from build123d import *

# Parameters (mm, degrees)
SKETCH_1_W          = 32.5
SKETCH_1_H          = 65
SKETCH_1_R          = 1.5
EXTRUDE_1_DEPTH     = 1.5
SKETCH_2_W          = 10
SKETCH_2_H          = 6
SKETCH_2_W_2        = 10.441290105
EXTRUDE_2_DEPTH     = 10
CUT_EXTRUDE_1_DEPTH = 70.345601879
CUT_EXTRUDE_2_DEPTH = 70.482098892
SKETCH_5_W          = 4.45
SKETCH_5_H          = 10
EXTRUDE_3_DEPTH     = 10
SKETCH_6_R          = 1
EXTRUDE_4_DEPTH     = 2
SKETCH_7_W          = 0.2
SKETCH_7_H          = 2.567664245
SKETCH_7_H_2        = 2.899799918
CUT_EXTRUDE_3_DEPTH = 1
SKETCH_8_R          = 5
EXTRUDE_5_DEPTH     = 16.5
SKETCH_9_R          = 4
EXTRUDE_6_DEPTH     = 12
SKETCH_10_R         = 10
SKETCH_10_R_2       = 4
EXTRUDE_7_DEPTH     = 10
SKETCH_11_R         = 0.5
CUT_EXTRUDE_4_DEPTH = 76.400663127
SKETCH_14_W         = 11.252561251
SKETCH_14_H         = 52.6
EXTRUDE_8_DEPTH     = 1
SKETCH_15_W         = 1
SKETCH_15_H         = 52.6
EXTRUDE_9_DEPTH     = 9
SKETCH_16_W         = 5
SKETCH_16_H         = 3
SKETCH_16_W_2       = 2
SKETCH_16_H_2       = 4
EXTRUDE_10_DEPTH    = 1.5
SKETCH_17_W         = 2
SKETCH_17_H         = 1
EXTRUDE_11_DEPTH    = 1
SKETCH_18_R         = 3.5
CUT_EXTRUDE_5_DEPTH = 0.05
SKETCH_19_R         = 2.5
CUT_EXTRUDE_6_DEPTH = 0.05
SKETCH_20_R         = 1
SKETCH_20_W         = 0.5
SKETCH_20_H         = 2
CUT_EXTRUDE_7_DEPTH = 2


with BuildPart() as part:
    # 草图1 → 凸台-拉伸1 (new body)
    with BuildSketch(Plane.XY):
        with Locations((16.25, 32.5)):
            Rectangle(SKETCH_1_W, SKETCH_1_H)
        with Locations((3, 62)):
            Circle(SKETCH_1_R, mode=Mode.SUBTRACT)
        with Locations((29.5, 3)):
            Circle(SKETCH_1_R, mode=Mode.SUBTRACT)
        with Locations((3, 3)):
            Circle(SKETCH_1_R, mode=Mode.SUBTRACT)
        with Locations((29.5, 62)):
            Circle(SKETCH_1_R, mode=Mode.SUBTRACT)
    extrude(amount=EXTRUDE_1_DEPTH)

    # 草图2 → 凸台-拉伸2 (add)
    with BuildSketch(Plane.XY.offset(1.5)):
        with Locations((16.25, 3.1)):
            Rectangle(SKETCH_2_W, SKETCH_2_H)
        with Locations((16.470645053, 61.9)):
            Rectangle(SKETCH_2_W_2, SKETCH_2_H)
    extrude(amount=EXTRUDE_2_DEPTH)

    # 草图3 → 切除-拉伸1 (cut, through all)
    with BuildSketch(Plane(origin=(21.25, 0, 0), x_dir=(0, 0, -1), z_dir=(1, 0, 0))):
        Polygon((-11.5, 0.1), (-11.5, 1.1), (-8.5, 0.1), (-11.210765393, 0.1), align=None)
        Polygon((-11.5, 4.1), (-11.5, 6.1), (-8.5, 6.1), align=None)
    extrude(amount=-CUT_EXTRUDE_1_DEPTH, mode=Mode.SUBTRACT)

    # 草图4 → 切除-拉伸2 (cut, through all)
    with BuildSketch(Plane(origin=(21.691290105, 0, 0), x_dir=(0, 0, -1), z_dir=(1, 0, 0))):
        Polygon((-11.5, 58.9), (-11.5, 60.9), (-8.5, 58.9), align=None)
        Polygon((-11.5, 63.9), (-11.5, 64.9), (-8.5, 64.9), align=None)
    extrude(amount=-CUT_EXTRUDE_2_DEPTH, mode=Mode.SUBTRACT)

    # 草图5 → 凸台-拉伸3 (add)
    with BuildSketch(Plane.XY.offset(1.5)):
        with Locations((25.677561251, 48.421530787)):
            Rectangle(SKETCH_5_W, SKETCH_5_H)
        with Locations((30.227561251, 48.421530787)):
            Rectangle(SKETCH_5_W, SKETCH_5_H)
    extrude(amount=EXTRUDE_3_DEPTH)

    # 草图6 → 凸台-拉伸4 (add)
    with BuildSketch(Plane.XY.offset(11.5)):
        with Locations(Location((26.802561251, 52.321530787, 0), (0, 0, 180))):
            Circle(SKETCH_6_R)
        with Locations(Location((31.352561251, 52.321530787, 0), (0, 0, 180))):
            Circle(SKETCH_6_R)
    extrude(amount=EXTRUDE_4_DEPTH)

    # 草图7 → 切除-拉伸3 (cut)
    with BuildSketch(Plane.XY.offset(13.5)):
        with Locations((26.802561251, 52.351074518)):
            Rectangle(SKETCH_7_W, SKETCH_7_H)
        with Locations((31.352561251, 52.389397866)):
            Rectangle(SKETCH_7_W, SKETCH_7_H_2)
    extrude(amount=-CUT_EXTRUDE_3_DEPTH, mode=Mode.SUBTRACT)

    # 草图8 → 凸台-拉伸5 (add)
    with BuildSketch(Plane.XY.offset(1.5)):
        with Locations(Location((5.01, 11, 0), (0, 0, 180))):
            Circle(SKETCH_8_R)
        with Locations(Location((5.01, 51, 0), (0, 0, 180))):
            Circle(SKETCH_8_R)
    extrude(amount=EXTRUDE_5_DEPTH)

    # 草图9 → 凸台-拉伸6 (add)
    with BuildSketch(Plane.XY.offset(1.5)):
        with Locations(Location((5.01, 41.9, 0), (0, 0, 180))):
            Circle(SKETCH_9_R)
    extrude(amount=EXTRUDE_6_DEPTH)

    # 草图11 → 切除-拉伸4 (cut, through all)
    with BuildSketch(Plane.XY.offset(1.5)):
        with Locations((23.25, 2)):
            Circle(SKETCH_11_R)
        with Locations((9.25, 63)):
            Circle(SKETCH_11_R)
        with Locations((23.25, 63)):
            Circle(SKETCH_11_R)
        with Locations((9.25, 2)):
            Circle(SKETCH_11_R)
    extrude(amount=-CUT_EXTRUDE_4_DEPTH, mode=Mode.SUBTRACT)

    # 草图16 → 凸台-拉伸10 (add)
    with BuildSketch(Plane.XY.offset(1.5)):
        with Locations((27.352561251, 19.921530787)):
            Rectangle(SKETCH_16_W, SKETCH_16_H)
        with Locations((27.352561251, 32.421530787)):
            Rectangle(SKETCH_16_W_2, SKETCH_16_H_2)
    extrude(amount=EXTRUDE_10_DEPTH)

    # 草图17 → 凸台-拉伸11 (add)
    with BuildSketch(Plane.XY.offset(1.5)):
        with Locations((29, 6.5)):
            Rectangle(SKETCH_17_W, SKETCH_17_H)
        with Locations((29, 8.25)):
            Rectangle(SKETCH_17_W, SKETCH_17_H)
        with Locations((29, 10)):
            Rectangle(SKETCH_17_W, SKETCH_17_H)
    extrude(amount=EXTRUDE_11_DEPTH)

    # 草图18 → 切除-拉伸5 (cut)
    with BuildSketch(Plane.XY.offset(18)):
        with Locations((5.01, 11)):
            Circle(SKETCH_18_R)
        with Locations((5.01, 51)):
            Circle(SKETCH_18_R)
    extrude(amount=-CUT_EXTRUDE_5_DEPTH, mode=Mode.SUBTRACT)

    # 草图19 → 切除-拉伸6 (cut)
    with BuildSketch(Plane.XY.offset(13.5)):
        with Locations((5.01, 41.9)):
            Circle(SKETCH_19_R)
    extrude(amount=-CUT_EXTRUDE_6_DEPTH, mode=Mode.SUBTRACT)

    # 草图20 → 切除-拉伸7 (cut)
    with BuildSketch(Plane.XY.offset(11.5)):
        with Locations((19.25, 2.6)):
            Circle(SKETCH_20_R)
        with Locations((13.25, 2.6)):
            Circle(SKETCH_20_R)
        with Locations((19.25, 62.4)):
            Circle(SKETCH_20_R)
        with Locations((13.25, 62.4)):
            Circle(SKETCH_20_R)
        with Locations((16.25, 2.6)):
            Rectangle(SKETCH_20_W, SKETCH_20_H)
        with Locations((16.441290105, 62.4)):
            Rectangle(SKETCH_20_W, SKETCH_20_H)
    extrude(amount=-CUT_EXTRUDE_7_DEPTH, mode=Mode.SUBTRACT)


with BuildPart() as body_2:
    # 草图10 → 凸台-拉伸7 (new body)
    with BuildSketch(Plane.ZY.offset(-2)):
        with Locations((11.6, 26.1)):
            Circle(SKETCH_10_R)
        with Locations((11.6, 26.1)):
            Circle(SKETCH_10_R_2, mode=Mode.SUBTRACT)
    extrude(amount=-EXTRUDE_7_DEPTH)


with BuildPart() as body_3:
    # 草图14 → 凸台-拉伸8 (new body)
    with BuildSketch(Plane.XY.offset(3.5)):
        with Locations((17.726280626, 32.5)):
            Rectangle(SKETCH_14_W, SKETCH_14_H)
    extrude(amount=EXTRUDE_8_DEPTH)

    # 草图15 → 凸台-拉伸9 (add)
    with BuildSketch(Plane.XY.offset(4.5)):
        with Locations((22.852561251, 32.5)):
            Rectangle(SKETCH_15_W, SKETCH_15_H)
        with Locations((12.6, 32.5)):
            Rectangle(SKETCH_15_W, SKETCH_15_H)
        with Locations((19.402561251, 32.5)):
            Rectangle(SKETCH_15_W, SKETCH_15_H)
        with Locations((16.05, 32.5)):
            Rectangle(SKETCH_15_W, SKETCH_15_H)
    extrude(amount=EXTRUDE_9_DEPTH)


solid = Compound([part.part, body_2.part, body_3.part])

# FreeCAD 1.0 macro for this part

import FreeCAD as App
import Part
import Sketcher


def add_polygon(sketch, points):
    """Adds a closed chain of lines whose ends are joined by coincident constraints."""
    first, n = sketch.GeometryCount, len(points)
    for a, b in zip(points, points[1:] + points[:1]):
        sketch.addGeometry(Part.LineSegment(App.Vector(*a, 0), App.Vector(*b, 0)), False)
    for i in range(n):
        sketch.addConstraint(Sketcher.Constraint("Coincident", first + i, 2, first + (i + 1) % n, 1))

doc = App.newDocument("Part")
body = doc.addObject("PartDesign::Body", "Body")

# Sketch on XY plane
sketch1 = body.newObject("Sketcher::SketchObject", "Sketch")
sketch1.AttachmentSupport = (doc.getObject("XY_Plane"), [""])
sketch1.MapMode = "FlatFace"
add_polygon(sketch1, [(0, 65), (0, 0), (32.5, 0), (32.5, 65)])  # lines 0-3
sketch1.addGeometry(Part.Circle(App.Vector(3, 3, 0), App.Vector(0, 0, 1), 1.5), False)  # 4
sketch1.addGeometry(Part.Circle(App.Vector(29.5, 3, 0), App.Vector(0, 0, 1), 1.5), False)  # 5
sketch1.addGeometry(Part.Circle(App.Vector(3, 62, 0), App.Vector(0, 0, 1), 1.5), False)  # 6
sketch1.addGeometry(Part.Circle(App.Vector(29.5, 62, 0), App.Vector(0, 0, 1), 1.5), False)  # 7
sketch1.addConstraint(Sketcher.Constraint("Vertical", 0))
sketch1.addConstraint(Sketcher.Constraint("Horizontal", 1))
sketch1.addConstraint(Sketcher.Constraint("Vertical", 2))
sketch1.addConstraint(Sketcher.Constraint("Horizontal", 3))
sketch1.addConstraint(Sketcher.Constraint("Coincident", 0, 2, -1, 1))
sketch1.addConstraint(Sketcher.Constraint("Equal", 4, 5))
sketch1.addConstraint(Sketcher.Constraint("Equal", 5, 6))
sketch1.addConstraint(Sketcher.Constraint("Equal", 6, 7))
sketch1.addConstraint(Sketcher.Constraint("Horizontal", 4, 3, 5, 3))
sketch1.addConstraint(Sketcher.Constraint("Horizontal", 6, 3, 7, 3))
sketch1.addConstraint(Sketcher.Constraint("Vertical", 4, 3, 6, 3))
sketch1.addConstraint(Sketcher.Constraint("Vertical", 5, 3, 7, 3))
sketch1.addConstraint(Sketcher.Constraint("Diameter", 4, 3.0))
sketch1.addConstraint(Sketcher.Constraint("DistanceY", 0, 2, 0, 1, 65.0))
sketch1.addConstraint(Sketcher.Constraint("DistanceX", 1, 1, 1, 2, 32.5))
sketch1.addConstraint(Sketcher.Constraint("DistanceX", -1, 1, 4, 3, 3.0))
sketch1.addConstraint(Sketcher.Constraint("DistanceY", -1, 1, 4, 3, 3.0))
sketch1.addConstraint(Sketcher.Constraint("DistanceY", -1, 1, 6, 3, 62.0))
sketch1.addConstraint(Sketcher.Constraint("DistanceX", 5, 3, 1, 2, 3.0))
pad1 = body.newObject("PartDesign::Pad", "Pad")
pad1.Profile = sketch1
pad1.Length = 1.5

# Sketch on XY plane
sketch2 = body.newObject("Sketcher::SketchObject", "Sketch001")
sketch2.AttachmentSupport = (doc.getObject("XY_Plane"), [""])
sketch2.MapMode = "FlatFace"
sketch2.AttachmentOffset = App.Placement(App.Vector(0, 0, 1.5), App.Rotation())
add_polygon(sketch2, [(11, 6), (11, 0), (21, 0), (21, 6)])  # lines 0-3
add_polygon(sketch2, [(11, 65), (11, 59), (22, 59), (22, 65)])  # lines 4-7
sketch2.addConstraint(Sketcher.Constraint("Vertical", 0))
sketch2.addConstraint(Sketcher.Constraint("Horizontal", 1))
sketch2.addConstraint(Sketcher.Constraint("Vertical", 2))
sketch2.addConstraint(Sketcher.Constraint("Horizontal", 3))
sketch2.addConstraint(Sketcher.Constraint("Vertical", 4))
sketch2.addConstraint(Sketcher.Constraint("Horizontal", 5))
sketch2.addConstraint(Sketcher.Constraint("Vertical", 6))
sketch2.addConstraint(Sketcher.Constraint("Horizontal", 7))
sketch2.addConstraint(Sketcher.Constraint("Vertical", 3, 2, 4, 2))
sketch2.addConstraint(Sketcher.Constraint("Equal", 2, 4))
sketch2.addConstraint(Sketcher.Constraint("DistanceX", 1, 1, 1, 2, 10.0))
sketch2.addConstraint(Sketcher.Constraint("DistanceY", 0, 2, 0, 1, 6.0))
sketch2.addConstraint(Sketcher.Constraint("DistanceY", -1, 1, 0, 2, 0.1))
sketch2.addConstraint(Sketcher.Constraint("DistanceY", -1, 1, 4, 2, 58.9))
sketch2.addConstraint(Sketcher.Constraint("DistanceX", -1, 1, 0, 2, 11.25))
sketch2.addConstraint(Sketcher.Constraint("DistanceX", 5, 1, 5, 2, 10.44129))
pad2 = body.newObject("PartDesign::Pad", "Pad001")
pad2.Profile = sketch2
pad2.Length = 10

# Sketch on YZ plane
sketch3 = body.newObject("Sketcher::SketchObject", "Sketch002")
sketch3.AttachmentSupport = (doc.getObject("YZ_Plane"), [""])
sketch3.MapMode = "FlatFace"
sketch3.AttachmentOffset = App.Placement(App.Vector(0, 0, 21.25), App.Rotation())
add_polygon(sketch3, [(1.1, 11.5), (0.1, 11.5), (0.1, 8.5)])  # lines 0-2
add_polygon(sketch3, [(6.1, 11.5), (4.1, 11.5), (6.1, 8.5)])  # lines 3-5
sketch3.addConstraint(Sketcher.Constraint("Horizontal", 0))
sketch3.addConstraint(Sketcher.Constraint("Vertical", 1))
sketch3.addConstraint(Sketcher.Constraint("Horizontal", 3))
sketch3.addConstraint(Sketcher.Constraint("Vertical", 5))
sketch3.addConstraint(Sketcher.Constraint("Horizontal", 2, 2, 3, 2))
sketch3.addConstraint(Sketcher.Constraint("Horizontal", 1, 2, 4, 2))
sketch3.addConstraint(Sketcher.Constraint("DistanceX", 0, 2, 0, 1, 1.0))
sketch3.addConstraint(Sketcher.Constraint("DistanceX", 3, 2, 3, 1, 2.0))
sketch3.addConstraint(Sketcher.Constraint("DistanceY", 1, 2, 1, 1, 3.0))
sketch3.addConstraint(Sketcher.Constraint("DistanceX", 2, 2, 3, 2, 3.0))
sketch3.addConstraint(Sketcher.Constraint("DistanceX", -1, 1, 0, 2, 0.1))
sketch3.addConstraint(Sketcher.Constraint("DistanceY", -1, 1, 0, 2, 11.5))
pocket1 = body.newObject("PartDesign::Pocket", "Pocket")
pocket1.Profile = sketch3
pocket1.Type = "ThroughAll"

# Sketch on YZ plane
sketch4 = body.newObject("Sketcher::SketchObject", "Sketch003")
sketch4.AttachmentSupport = (doc.getObject("YZ_Plane"), [""])
sketch4.MapMode = "FlatFace"
sketch4.AttachmentOffset = App.Placement(App.Vector(0, 0, 21.69129), App.Rotation())
add_polygon(sketch4, [(60.9, 11.5), (58.9, 11.5), (58.9, 8.5)])  # lines 0-2
add_polygon(sketch4, [(64.9, 11.5), (63.9, 11.5), (64.9, 8.5)])  # lines 3-5
sketch4.addConstraint(Sketcher.Constraint("Horizontal", 0))
sketch4.addConstraint(Sketcher.Constraint("Vertical", 1))
sketch4.addConstraint(Sketcher.Constraint("Horizontal", 3))
sketch4.addConstraint(Sketcher.Constraint("Vertical", 5))
sketch4.addConstraint(Sketcher.Constraint("Horizontal", 2, 2, 3, 2))
sketch4.addConstraint(Sketcher.Constraint("Horizontal", 1, 2, 4, 2))
sketch4.addConstraint(Sketcher.Constraint("DistanceX", 0, 2, 0, 1, 2.0))
sketch4.addConstraint(Sketcher.Constraint("DistanceX", 3, 2, 3, 1, 1.0))
sketch4.addConstraint(Sketcher.Constraint("DistanceY", 1, 2, 1, 1, 3.0))
sketch4.addConstraint(Sketcher.Constraint("DistanceX", 2, 2, 3, 2, 3.0))
sketch4.addConstraint(Sketcher.Constraint("DistanceX", -1, 1, 0, 2, 58.9))
sketch4.addConstraint(Sketcher.Constraint("DistanceY", -1, 1, 0, 2, 11.5))
pocket2 = body.newObject("PartDesign::Pocket", "Pocket001")
pocket2.Profile = sketch4
pocket2.Type = "ThroughAll"

# Sketch on XY plane
sketch5 = body.newObject("Sketcher::SketchObject", "Sketch004")
sketch5.AttachmentSupport = (doc.getObject("XY_Plane"), [""])
sketch5.MapMode = "FlatFace"
sketch5.AttachmentOffset = App.Placement(App.Vector(0, 0, 1.5), App.Rotation())
add_polygon(sketch5, [(23.5, 53.4), (23.5, 43.4), (27.9, 43.4), (27.9, 53.4)])  # lines 0-3
add_polygon(sketch5, [(28, 53.4), (28, 43.4), (32.5, 43.4), (32.5, 53.4)])  # lines 4-7
sketch5.addConstraint(Sketcher.Constraint("Vertical", 0))
sketch5.addConstraint(Sketcher.Constraint("Horizontal", 1))
sketch5.addConstraint(Sketcher.Constraint("Vertical", 2))
sketch5.addConstraint(Sketcher.Constraint("Horizontal", 3))
sketch5.addConstraint(Sketcher.Constraint("Vertical", 4))
sketch5.addConstraint(Sketcher.Constraint("Horizontal", 5))
sketch5.addConstraint(Sketcher.Constraint("Vertical", 6))
sketch5.addConstraint(Sketcher.Constraint("Horizontal", 7))
sketch5.addConstraint(Sketcher.Constraint("Horizontal", 1, 2, 4, 2))
sketch5.addConstraint(Sketcher.Constraint("Horizontal", 3, 2, 6, 2))
sketch5.addConstraint(Sketcher.Constraint("Equal", 3, 5))
sketch5.addConstraint(Sketcher.Constraint("DistanceY", 0, 2, 0, 1, 10.0))
sketch5.addConstraint(Sketcher.Constraint("DistanceX", 0, 2, 5, 2, 9.0))
sketch5.addConstraint(Sketcher.Constraint("DistanceX", 1, 1, 1, 2, 4.45))
sketch5.addConstraint(Sketcher.Constraint("DistanceX", -1, 1, 0, 2, 23.452561))
sketch5.addConstraint(Sketcher.Constraint("DistanceY", -1, 1, 0, 2, 43.421531))
pad3 = body.newObject("PartDesign::Pad", "Pad002")
pad3.Profile = sketch5
pad3.Length = 10

# Sketch on XY plane
sketch6 = body.newObject("Sketcher::SketchObject", "Sketch005")
sketch6.AttachmentSupport = (doc.getObject("XY_Plane"), [""])
sketch6.MapMode = "FlatFace"
sketch6.AttachmentOffset = App.Placement(App.Vector(0, 0, 11.5), App.Rotation())
sketch6.addGeometry(Part.Circle(App.Vector(26.8, 52.3, 0), App.Vector(0, 0, 1), 1), False)
sketch6.addGeometry(Part.Circle(App.Vector(31.4, 52.3, 0), App.Vector(0, 0, 1), 1), False)
sketch6.addConstraint(Sketcher.Constraint("Equal", 0, 1))
sketch6.addConstraint(Sketcher.Constraint("Horizontal", 0, 3, 1, 3))
sketch6.addConstraint(Sketcher.Constraint("Diameter", 0, 2.0))
sketch6.addConstraint(Sketcher.Constraint("DistanceX", 0, 3, 1, 3, 4.55))
sketch6.addConstraint(Sketcher.Constraint("DistanceX", -1, 1, 0, 3, 26.802561))
sketch6.addConstraint(Sketcher.Constraint("DistanceY", -1, 1, 0, 3, 52.321531))
pad4 = body.newObject("PartDesign::Pad", "Pad003")
pad4.Profile = sketch6
pad4.Length = 2

# Sketch on XY plane
sketch7 = body.newObject("Sketcher::SketchObject", "Sketch006")
sketch7.AttachmentSupport = (doc.getObject("XY_Plane"), [""])
sketch7.MapMode = "FlatFace"
sketch7.AttachmentOffset = App.Placement(App.Vector(0, 0, 13.5), App.Rotation())
add_polygon(sketch7, [(26.7, 53.63), (26.7, 51.07), (26.9, 51.07), (26.9, 53.63)])  # lines 0-3
add_polygon(sketch7, [(31.25, 53.84), (31.25, 50.94), (31.45, 50.94), (31.45, 53.84)])  # lines 4-7
sketch7.addConstraint(Sketcher.Constraint("Vertical", 0))
sketch7.addConstraint(Sketcher.Constraint("Horizontal", 1))
sketch7.addConstraint(Sketcher.Constraint("Vertical", 2))
sketch7.addConstraint(Sketcher.Constraint("Horizontal", 3))
sketch7.addConstraint(Sketcher.Constraint("Vertical", 4))
sketch7.addConstraint(Sketcher.Constraint("Horizontal", 5))
sketch7.addConstraint(Sketcher.Constraint("Vertical", 6))
sketch7.addConstraint(Sketcher.Constraint("Horizontal", 7))
sketch7.addConstraint(Sketcher.Constraint("Equal", 3, 5))
sketch7.addConstraint(Sketcher.Constraint("DistanceX", 1, 1, 1, 2, 0.2))
sketch7.addConstraint(Sketcher.Constraint("DistanceX", 1, 2, 4, 2, 4.35))
sketch7.addConstraint(Sketcher.Constraint("DistanceY", 4, 2, 4, 1, 2.8998))
sketch7.addConstraint(Sketcher.Constraint("DistanceY", 0, 2, 0, 1, 2.567664))
sketch7.addConstraint(Sketcher.Constraint("DistanceX", -1, 1, 0, 2, 26.702561))
sketch7.addConstraint(Sketcher.Constraint("DistanceY", 4, 2, 2, 2, 2.695409))
sketch7.addConstraint(Sketcher.Constraint("DistanceY", -1, 1, 0, 2, 51.067242))
pocket3 = body.newObject("PartDesign::Pocket", "Pocket002")
pocket3.Profile = sketch7
pocket3.Length = 1

# Sketch on XY plane
sketch8 = body.newObject("Sketcher::SketchObject", "Sketch007")
sketch8.AttachmentSupport = (doc.getObject("XY_Plane"), [""])
sketch8.MapMode = "FlatFace"
sketch8.AttachmentOffset = App.Placement(App.Vector(0, 0, 1.5), App.Rotation())
sketch8.addGeometry(Part.Circle(App.Vector(5, 11, 0), App.Vector(0, 0, 1), 5), False)
sketch8.addGeometry(Part.Circle(App.Vector(5, 51, 0), App.Vector(0, 0, 1), 5), False)
sketch8.addConstraint(Sketcher.Constraint("Equal", 0, 1))
sketch8.addConstraint(Sketcher.Constraint("Vertical", 0, 3, 1, 3))
sketch8.addConstraint(Sketcher.Constraint("Diameter", 0, 10.0))
sketch8.addConstraint(Sketcher.Constraint("DistanceY", -1, 1, 0, 3, 11.0))
sketch8.addConstraint(Sketcher.Constraint("DistanceY", -1, 1, 1, 3, 51.0))
sketch8.addConstraint(Sketcher.Constraint("DistanceX", -1, 1, 0, 3, 5.01))
pad5 = body.newObject("PartDesign::Pad", "Pad004")
pad5.Profile = sketch8
pad5.Length = 16.5

# Sketch on XY plane
sketch9 = body.newObject("Sketcher::SketchObject", "Sketch008")
sketch9.AttachmentSupport = (doc.getObject("XY_Plane"), [""])
sketch9.MapMode = "FlatFace"
sketch9.AttachmentOffset = App.Placement(App.Vector(0, 0, 1.5), App.Rotation())
sketch9.addGeometry(Part.Circle(App.Vector(5, 41.9, 0), App.Vector(0, 0, 1), 4), False)
sketch9.addConstraint(Sketcher.Constraint("Diameter", 0, 8.0))
sketch9.addConstraint(Sketcher.Constraint("DistanceY", -1, 1, 0, 3, 41.9))
sketch9.addConstraint(Sketcher.Constraint("DistanceX", -1, 1, 0, 3, 5.01))
pad6 = body.newObject("PartDesign::Pad", "Pad005")
pad6.Profile = sketch9
pad6.Length = 12

# Sketch on XY plane
sketch10 = body.newObject("Sketcher::SketchObject", "Sketch009")
sketch10.AttachmentSupport = (doc.getObject("XY_Plane"), [""])
sketch10.MapMode = "FlatFace"
sketch10.AttachmentOffset = App.Placement(App.Vector(0, 0, 1.5), App.Rotation())
sketch10.addGeometry(Part.Circle(App.Vector(23.2, 2, 0), App.Vector(0, 0, 1), 0.5), False)
sketch10.addGeometry(Part.Circle(App.Vector(9.2, 63, 0), App.Vector(0, 0, 1), 0.5), False)
sketch10.addGeometry(Part.Circle(App.Vector(23.2, 63, 0), App.Vector(0, 0, 1), 0.5), False)
sketch10.addGeometry(Part.Circle(App.Vector(9.2, 2, 0), App.Vector(0, 0, 1), 0.5), False)
sketch10.addConstraint(Sketcher.Constraint("Equal", 0, 1))
sketch10.addConstraint(Sketcher.Constraint("Equal", 1, 2))
sketch10.addConstraint(Sketcher.Constraint("Equal", 2, 3))
sketch10.addConstraint(Sketcher.Constraint("Horizontal", 1, 3, 2, 3))
sketch10.addConstraint(Sketcher.Constraint("Horizontal", 0, 3, 3, 3))
sketch10.addConstraint(Sketcher.Constraint("Vertical", 0, 3, 2, 3))
sketch10.addConstraint(Sketcher.Constraint("Vertical", 1, 3, 3, 3))
sketch10.addConstraint(Sketcher.Constraint("Diameter", 0, 1.0))
sketch10.addConstraint(Sketcher.Constraint("DistanceY", -1, 1, 0, 3, 2.0))
sketch10.addConstraint(Sketcher.Constraint("DistanceY", -1, 1, 1, 3, 63.0))
sketch10.addConstraint(Sketcher.Constraint("DistanceX", 1, 3, 0, 3, 14.0))
sketch10.addConstraint(Sketcher.Constraint("DistanceX", -1, 1, 0, 3, 23.25))
pocket4 = body.newObject("PartDesign::Pocket", "Pocket003")
pocket4.Profile = sketch10
pocket4.Type = "ThroughAll"

# Sketch on XY plane
sketch11 = body.newObject("Sketcher::SketchObject", "Sketch010")
sketch11.AttachmentSupport = (doc.getObject("XY_Plane"), [""])
sketch11.MapMode = "FlatFace"
sketch11.AttachmentOffset = App.Placement(App.Vector(0, 0, 1.5), App.Rotation())
add_polygon(sketch11, [(24.9, 21.4), (24.9, 18.4), (29.9, 18.4), (29.9, 21.4)])  # lines 0-3
add_polygon(sketch11, [(26.4, 34.4), (26.4, 30.4), (28.4, 30.4), (28.4, 34.4)])  # lines 4-7
sketch11.addConstraint(Sketcher.Constraint("Vertical", 0))
sketch11.addConstraint(Sketcher.Constraint("Horizontal", 1))
sketch11.addConstraint(Sketcher.Constraint("Vertical", 2))
sketch11.addConstraint(Sketcher.Constraint("Horizontal", 3))
sketch11.addConstraint(Sketcher.Constraint("Vertical", 4))
sketch11.addConstraint(Sketcher.Constraint("Horizontal", 5))
sketch11.addConstraint(Sketcher.Constraint("Vertical", 6))
sketch11.addConstraint(Sketcher.Constraint("Horizontal", 7))
sketch11.addConstraint(Sketcher.Constraint("DistanceX", 1, 1, 1, 2, 5.0))
sketch11.addConstraint(Sketcher.Constraint("DistanceX", 5, 1, 5, 2, 2.0))
sketch11.addConstraint(Sketcher.Constraint("DistanceY", 0, 2, 0, 1, 3.0))
sketch11.addConstraint(Sketcher.Constraint("DistanceY", 4, 2, 4, 1, 4.0))
sketch11.addConstraint(Sketcher.Constraint("DistanceY", 3, 2, 4, 2, 9.0))
sketch11.addConstraint(Sketcher.Constraint("DistanceX", 3, 2, 4, 2, 1.5))
sketch11.addConstraint(Sketcher.Constraint("DistanceX", -1, 1, 0, 2, 24.852561))
sketch11.addConstraint(Sketcher.Constraint("DistanceY", -1, 1, 0, 2, 18.421531))
pad7 = body.newObject("PartDesign::Pad", "Pad006")
pad7.Profile = sketch11
pad7.Length = 1.5

# Sketch on XY plane
sketch12 = body.newObject("Sketcher::SketchObject", "Sketch011")
sketch12.AttachmentSupport = (doc.getObject("XY_Plane"), [""])
sketch12.MapMode = "FlatFace"
sketch12.AttachmentOffset = App.Placement(App.Vector(0, 0, 1.5), App.Rotation())
add_polygon(sketch12, [(28, 7), (28, 6), (30, 6), (30, 7)])  # lines 0-3
add_polygon(sketch12, [(28, 8.8), (28, 7.8), (30, 7.8), (30, 8.8)])  # lines 4-7
add_polygon(sketch12, [(28, 10.5), (28, 9.5), (30, 9.5), (30, 10.5)])  # lines 8-11
sketch12.addConstraint(Sketcher.Constraint("Vertical", 0))
sketch12.addConstraint(Sketcher.Constraint("Horizontal", 1))
sketch12.addConstraint(Sketcher.Constraint("Vertical", 2))
sketch12.addConstraint(Sketcher.Constraint("Horizontal", 3))
sketch12.addConstraint(Sketcher.Constraint("Vertical", 4))
sketch12.addConstraint(Sketcher.Constraint("Horizontal", 5))
sketch12.addConstraint(Sketcher.Constraint("Vertical", 6))
sketch12.addConstraint(Sketcher.Constraint("Horizontal", 7))
sketch12.addConstraint(Sketcher.Constraint("Vertical", 8))
sketch12.addConstraint(Sketcher.Constraint("Horizontal", 9))
sketch12.addConstraint(Sketcher.Constraint("Vertical", 10))
sketch12.addConstraint(Sketcher.Constraint("Horizontal", 11))
sketch12.addConstraint(Sketcher.Constraint("Vertical", 3, 2, 4, 2))
sketch12.addConstraint(Sketcher.Constraint("Vertical", 2, 2, 5, 2))
sketch12.addConstraint(Sketcher.Constraint("Vertical", 7, 2, 8, 2))
sketch12.addConstraint(Sketcher.Constraint("Vertical", 6, 2, 9, 2))
sketch12.addConstraint(Sketcher.Constraint("Equal", 2, 4))
sketch12.addConstraint(Sketcher.Constraint("Equal", 6, 8))
sketch12.addConstraint(Sketcher.Constraint("DistanceX", 1, 1, 1, 2, 2.0))
sketch12.addConstraint(Sketcher.Constraint("DistanceY", 0, 2, 0, 1, 1.0))
sketch12.addConstraint(Sketcher.Constraint("DistanceX", -1, 1, 0, 2, 28.0))
sketch12.addConstraint(Sketcher.Constraint("DistanceY", -1, 1, 0, 2, 6.0))
sketch12.addConstraint(Sketcher.Constraint("DistanceY", -1, 1, 8, 2, 9.5))
sketch12.addConstraint(Sketcher.Constraint("DistanceY", -1, 1, 4, 2, 7.75))
pad8 = body.newObject("PartDesign::Pad", "Pad007")
pad8.Profile = sketch12
pad8.Length = 1

# Sketch on XY plane
sketch13 = body.newObject("Sketcher::SketchObject", "Sketch012")
sketch13.AttachmentSupport = (doc.getObject("XY_Plane"), [""])
sketch13.MapMode = "FlatFace"
sketch13.AttachmentOffset = App.Placement(App.Vector(0, 0, 18), App.Rotation())
sketch13.addGeometry(Part.Circle(App.Vector(5, 11, 0), App.Vector(0, 0, 1), 3.5), False)
sketch13.addGeometry(Part.Circle(App.Vector(5, 51, 0), App.Vector(0, 0, 1), 3.5), False)
sketch13.addConstraint(Sketcher.Constraint("Equal", 0, 1))
sketch13.addConstraint(Sketcher.Constraint("Vertical", 0, 3, 1, 3))
sketch13.addConstraint(Sketcher.Constraint("Diameter", 0, 7.0))
sketch13.addConstraint(Sketcher.Constraint("DistanceY", -1, 1, 0, 3, 11.0))
sketch13.addConstraint(Sketcher.Constraint("DistanceY", -1, 1, 1, 3, 51.0))
sketch13.addConstraint(Sketcher.Constraint("DistanceX", -1, 1, 0, 3, 5.01))
pocket5 = body.newObject("PartDesign::Pocket", "Pocket004")
pocket5.Profile = sketch13
pocket5.Length = 0.05

# Sketch on XY plane
sketch14 = body.newObject("Sketcher::SketchObject", "Sketch013")
sketch14.AttachmentSupport = (doc.getObject("XY_Plane"), [""])
sketch14.MapMode = "FlatFace"
sketch14.AttachmentOffset = App.Placement(App.Vector(0, 0, 13.5), App.Rotation())
sketch14.addGeometry(Part.Circle(App.Vector(5, 41.9, 0), App.Vector(0, 0, 1), 2.5), False)
sketch14.addConstraint(Sketcher.Constraint("Diameter", 0, 5.0))
sketch14.addConstraint(Sketcher.Constraint("DistanceY", -1, 1, 0, 3, 41.9))
sketch14.addConstraint(Sketcher.Constraint("DistanceX", -1, 1, 0, 3, 5.01))
pocket6 = body.newObject("PartDesign::Pocket", "Pocket005")
pocket6.Profile = sketch14
pocket6.Length = 0.05

# Sketch on XY plane
sketch15 = body.newObject("Sketcher::SketchObject", "Sketch014")
sketch15.AttachmentSupport = (doc.getObject("XY_Plane"), [""])
sketch15.MapMode = "FlatFace"
sketch15.AttachmentOffset = App.Placement(App.Vector(0, 0, 11.5), App.Rotation())
sketch15.addGeometry(Part.Circle(App.Vector(19.2, 2.6, 0), App.Vector(0, 0, 1), 1), False)  # 0
sketch15.addGeometry(Part.Circle(App.Vector(13.2, 2.6, 0), App.Vector(0, 0, 1), 1), False)  # 1
sketch15.addGeometry(Part.Circle(App.Vector(19.2, 62.4, 0), App.Vector(0, 0, 1), 1), False)  # 2
sketch15.addGeometry(Part.Circle(App.Vector(13.2, 62.4, 0), App.Vector(0, 0, 1), 1), False)  # 3
add_polygon(sketch15, [(16, 3.6), (16, 1.6), (16.5, 1.6), (16.5, 3.6)])  # lines 4-7
add_polygon(sketch15, [(16.2, 63.4), (16.2, 61.4), (16.7, 61.4), (16.7, 63.4)])  # lines 8-11
sketch15.addConstraint(Sketcher.Constraint("Vertical", 4))
sketch15.addConstraint(Sketcher.Constraint("Horizontal", 5))
sketch15.addConstraint(Sketcher.Constraint("Vertical", 6))
sketch15.addConstraint(Sketcher.Constraint("Horizontal", 7))
sketch15.addConstraint(Sketcher.Constraint("Vertical", 8))
sketch15.addConstraint(Sketcher.Constraint("Horizontal", 9))
sketch15.addConstraint(Sketcher.Constraint("Vertical", 10))
sketch15.addConstraint(Sketcher.Constraint("Horizontal", 11))
sketch15.addConstraint(Sketcher.Constraint("Equal", 0, 1))
sketch15.addConstraint(Sketcher.Constraint("Equal", 1, 2))
sketch15.addConstraint(Sketcher.Constraint("Equal", 2, 3))
sketch15.addConstraint(Sketcher.Constraint("Horizontal", 0, 3, 1, 3))
sketch15.addConstraint(Sketcher.Constraint("Horizontal", 2, 3, 3, 3))
sketch15.addConstraint(Sketcher.Constraint("Vertical", 0, 3, 2, 3))
sketch15.addConstraint(Sketcher.Constraint("Vertical", 1, 3, 3, 3))
sketch15.addConstraint(Sketcher.Constraint("Equal", 7, 9))
sketch15.addConstraint(Sketcher.Constraint("Equal", 6, 8))
sketch15.addConstraint(Sketcher.Constraint("Diameter", 0, 2.0))
sketch15.addConstraint(Sketcher.Constraint("DistanceY", 4, 2, 4, 1, 2.0))
sketch15.addConstraint(Sketcher.Constraint("DistanceX", 5, 1, 5, 2, 0.5))
sketch15.addConstraint(Sketcher.Constraint("DistanceX", -1, 1, 4, 2, 16.0))
sketch15.addConstraint(Sketcher.Constraint("DistanceX", 1, 3, 0, 3, 6.0))
sketch15.addConstraint(Sketcher.Constraint("DistanceY", 4, 2, 1, 3, 1.0))
sketch15.addConstraint(Sketcher.Constraint("DistanceY", 8, 2, 3, 3, 1.0))
sketch15.addConstraint(Sketcher.Constraint("DistanceY", -1, 1, 0, 3, 2.6))
sketch15.addConstraint(Sketcher.Constraint("DistanceY", -1, 1, 2, 3, 62.4))
sketch15.addConstraint(Sketcher.Constraint("DistanceX", -1, 1, 0, 3, 19.25))
sketch15.addConstraint(Sketcher.Constraint("DistanceX", -1, 1, 8, 2, 16.19129))
pocket7 = body.newObject("PartDesign::Pocket", "Pocket006")
pocket7.Profile = sketch15
pocket7.Length = 2
body2 = doc.addObject("PartDesign::Body", "Body001")

# Sketch on YZ plane
sketch16 = body2.newObject("Sketcher::SketchObject", "Sketch015")
sketch16.AttachmentSupport = (doc.getObject("YZ_Plane001"), [""])
sketch16.MapMode = "FlatFace"
sketch16.AttachmentOffset = App.Placement(App.Vector(0, 0, 2), App.Rotation())
sketch16.addGeometry(Part.Circle(App.Vector(26.1, 11.6, 0), App.Vector(0, 0, 1), 10), False)
sketch16.addGeometry(Part.Circle(App.Vector(26.1, 11.6, 0), App.Vector(0, 0, 1), 4), False)
sketch16.addConstraint(Sketcher.Constraint("Coincident", 1, 3, 0, 3))
sketch16.addConstraint(Sketcher.Constraint("Diameter", 0, 20.0))
sketch16.addConstraint(Sketcher.Constraint("Diameter", 1, 8.0))
sketch16.addConstraint(Sketcher.Constraint("DistanceX", -1, 1, 0, 3, 26.1))
sketch16.addConstraint(Sketcher.Constraint("DistanceY", -1, 1, 0, 3, 11.6))
pad9 = body2.newObject("PartDesign::Pad", "Pad008")
pad9.Profile = sketch16
pad9.Length = 10
body3 = doc.addObject("PartDesign::Body", "Body002")

# Sketch on XY plane
sketch17 = body3.newObject("Sketcher::SketchObject", "Sketch016")
sketch17.AttachmentSupport = (doc.getObject("XY_Plane002"), [""])
sketch17.MapMode = "FlatFace"
sketch17.AttachmentOffset = App.Placement(App.Vector(0, 0, 3.5), App.Rotation())
add_polygon(sketch17, [(12, 59), (12, 6), (23, 6), (23, 59)])  # lines 0-3
sketch17.addConstraint(Sketcher.Constraint("Vertical", 0))
sketch17.addConstraint(Sketcher.Constraint("Horizontal", 1))
sketch17.addConstraint(Sketcher.Constraint("Vertical", 2))
sketch17.addConstraint(Sketcher.Constraint("Horizontal", 3))
sketch17.addConstraint(Sketcher.Constraint("DistanceY", 0, 2, 0, 1, 52.6))
sketch17.addConstraint(Sketcher.Constraint("DistanceX", -1, 1, 0, 2, 12.1))
sketch17.addConstraint(Sketcher.Constraint("DistanceY", -1, 1, 0, 2, 6.2))
sketch17.addConstraint(Sketcher.Constraint("DistanceX", 1, 1, 1, 2, 11.252561))
pad10 = body3.newObject("PartDesign::Pad", "Pad009")
pad10.Profile = sketch17
pad10.Length = 1

# Sketch on XY plane
sketch18 = body3.newObject("Sketcher::SketchObject", "Sketch017")
sketch18.AttachmentSupport = (doc.getObject("XY_Plane002"), [""])
sketch18.MapMode = "FlatFace"
sketch18.AttachmentOffset = App.Placement(App.Vector(0, 0, 4.5), App.Rotation())
add_polygon(sketch18, [(22.4, 58.8), (22.4, 6.2), (23.4, 6.2), (23.4, 58.8)])  # lines 0-3
add_polygon(sketch18, [(12.1, 58.8), (12.1, 6.2), (13.1, 6.2), (13.1, 58.8)])  # lines 4-7
add_polygon(sketch18, [(18.9, 58.8), (18.9, 6.2), (19.9, 6.2), (19.9, 58.8)])  # lines 8-11
add_polygon(sketch18, [(15.6, 58.8), (15.6, 6.2), (16.6, 6.2), (16.6, 58.8)])  # lines 12-15
sketch18.addConstraint(Sketcher.Constraint("Vertical", 0))
sketch18.addConstraint(Sketcher.Constraint("Horizontal", 1))
sketch18.addConstraint(Sketcher.Constraint("Vertical", 2))
sketch18.addConstraint(Sketcher.Constraint("Horizontal", 3))
sketch18.addConstraint(Sketcher.Constraint("Vertical", 4))
sketch18.addConstraint(Sketcher.Constraint("Horizontal", 5))
sketch18.addConstraint(Sketcher.Constraint("Vertical", 6))
sketch18.addConstraint(Sketcher.Constraint("Horizontal", 7))
sketch18.addConstraint(Sketcher.Constraint("Vertical", 8))
sketch18.addConstraint(Sketcher.Constraint("Horizontal", 9))
sketch18.addConstraint(Sketcher.Constraint("Vertical", 10))
sketch18.addConstraint(Sketcher.Constraint("Horizontal", 11))
sketch18.addConstraint(Sketcher.Constraint("Vertical", 12))
sketch18.addConstraint(Sketcher.Constraint("Horizontal", 13))
sketch18.addConstraint(Sketcher.Constraint("Vertical", 14))
sketch18.addConstraint(Sketcher.Constraint("Horizontal", 15))
sketch18.addConstraint(Sketcher.Constraint("Horizontal", 1, 2, 4, 2))
sketch18.addConstraint(Sketcher.Constraint("Horizontal", 3, 2, 6, 2))
sketch18.addConstraint(Sketcher.Constraint("Horizontal", 5, 2, 8, 2))
sketch18.addConstraint(Sketcher.Constraint("Horizontal", 7, 2, 10, 2))
sketch18.addConstraint(Sketcher.Constraint("Horizontal", 9, 2, 12, 2))
sketch18.addConstraint(Sketcher.Constraint("Horizontal", 11, 2, 14, 2))
sketch18.addConstraint(Sketcher.Constraint("Equal", 3, 5))
sketch18.addConstraint(Sketcher.Constraint("Equal", 7, 9))
sketch18.addConstraint(Sketcher.Constraint("Equal", 11, 13))
sketch18.addConstraint(Sketcher.Constraint("DistanceX", 1, 1, 1, 2, 1.0))
sketch18.addConstraint(Sketcher.Constraint("DistanceY", 0, 2, 0, 1, 52.6))
sketch18.addConstraint(Sketcher.Constraint("DistanceY", -1, 1, 0, 2, 6.2))
sketch18.addConstraint(Sketcher.Constraint("DistanceX", -1, 1, 4, 2, 12.1))
sketch18.addConstraint(Sketcher.Constraint("DistanceX", -1, 1, 12, 2, 15.55))
sketch18.addConstraint(Sketcher.Constraint("DistanceX", 8, 2, 0, 2, 3.45))
sketch18.addConstraint(Sketcher.Constraint("DistanceX", -1, 1, 0, 2, 22.352561))
pad11 = body3.newObject("PartDesign::Pad", "Pad010")
pad11.Profile = sketch18
pad11.Length = 9

doc.recompute()
